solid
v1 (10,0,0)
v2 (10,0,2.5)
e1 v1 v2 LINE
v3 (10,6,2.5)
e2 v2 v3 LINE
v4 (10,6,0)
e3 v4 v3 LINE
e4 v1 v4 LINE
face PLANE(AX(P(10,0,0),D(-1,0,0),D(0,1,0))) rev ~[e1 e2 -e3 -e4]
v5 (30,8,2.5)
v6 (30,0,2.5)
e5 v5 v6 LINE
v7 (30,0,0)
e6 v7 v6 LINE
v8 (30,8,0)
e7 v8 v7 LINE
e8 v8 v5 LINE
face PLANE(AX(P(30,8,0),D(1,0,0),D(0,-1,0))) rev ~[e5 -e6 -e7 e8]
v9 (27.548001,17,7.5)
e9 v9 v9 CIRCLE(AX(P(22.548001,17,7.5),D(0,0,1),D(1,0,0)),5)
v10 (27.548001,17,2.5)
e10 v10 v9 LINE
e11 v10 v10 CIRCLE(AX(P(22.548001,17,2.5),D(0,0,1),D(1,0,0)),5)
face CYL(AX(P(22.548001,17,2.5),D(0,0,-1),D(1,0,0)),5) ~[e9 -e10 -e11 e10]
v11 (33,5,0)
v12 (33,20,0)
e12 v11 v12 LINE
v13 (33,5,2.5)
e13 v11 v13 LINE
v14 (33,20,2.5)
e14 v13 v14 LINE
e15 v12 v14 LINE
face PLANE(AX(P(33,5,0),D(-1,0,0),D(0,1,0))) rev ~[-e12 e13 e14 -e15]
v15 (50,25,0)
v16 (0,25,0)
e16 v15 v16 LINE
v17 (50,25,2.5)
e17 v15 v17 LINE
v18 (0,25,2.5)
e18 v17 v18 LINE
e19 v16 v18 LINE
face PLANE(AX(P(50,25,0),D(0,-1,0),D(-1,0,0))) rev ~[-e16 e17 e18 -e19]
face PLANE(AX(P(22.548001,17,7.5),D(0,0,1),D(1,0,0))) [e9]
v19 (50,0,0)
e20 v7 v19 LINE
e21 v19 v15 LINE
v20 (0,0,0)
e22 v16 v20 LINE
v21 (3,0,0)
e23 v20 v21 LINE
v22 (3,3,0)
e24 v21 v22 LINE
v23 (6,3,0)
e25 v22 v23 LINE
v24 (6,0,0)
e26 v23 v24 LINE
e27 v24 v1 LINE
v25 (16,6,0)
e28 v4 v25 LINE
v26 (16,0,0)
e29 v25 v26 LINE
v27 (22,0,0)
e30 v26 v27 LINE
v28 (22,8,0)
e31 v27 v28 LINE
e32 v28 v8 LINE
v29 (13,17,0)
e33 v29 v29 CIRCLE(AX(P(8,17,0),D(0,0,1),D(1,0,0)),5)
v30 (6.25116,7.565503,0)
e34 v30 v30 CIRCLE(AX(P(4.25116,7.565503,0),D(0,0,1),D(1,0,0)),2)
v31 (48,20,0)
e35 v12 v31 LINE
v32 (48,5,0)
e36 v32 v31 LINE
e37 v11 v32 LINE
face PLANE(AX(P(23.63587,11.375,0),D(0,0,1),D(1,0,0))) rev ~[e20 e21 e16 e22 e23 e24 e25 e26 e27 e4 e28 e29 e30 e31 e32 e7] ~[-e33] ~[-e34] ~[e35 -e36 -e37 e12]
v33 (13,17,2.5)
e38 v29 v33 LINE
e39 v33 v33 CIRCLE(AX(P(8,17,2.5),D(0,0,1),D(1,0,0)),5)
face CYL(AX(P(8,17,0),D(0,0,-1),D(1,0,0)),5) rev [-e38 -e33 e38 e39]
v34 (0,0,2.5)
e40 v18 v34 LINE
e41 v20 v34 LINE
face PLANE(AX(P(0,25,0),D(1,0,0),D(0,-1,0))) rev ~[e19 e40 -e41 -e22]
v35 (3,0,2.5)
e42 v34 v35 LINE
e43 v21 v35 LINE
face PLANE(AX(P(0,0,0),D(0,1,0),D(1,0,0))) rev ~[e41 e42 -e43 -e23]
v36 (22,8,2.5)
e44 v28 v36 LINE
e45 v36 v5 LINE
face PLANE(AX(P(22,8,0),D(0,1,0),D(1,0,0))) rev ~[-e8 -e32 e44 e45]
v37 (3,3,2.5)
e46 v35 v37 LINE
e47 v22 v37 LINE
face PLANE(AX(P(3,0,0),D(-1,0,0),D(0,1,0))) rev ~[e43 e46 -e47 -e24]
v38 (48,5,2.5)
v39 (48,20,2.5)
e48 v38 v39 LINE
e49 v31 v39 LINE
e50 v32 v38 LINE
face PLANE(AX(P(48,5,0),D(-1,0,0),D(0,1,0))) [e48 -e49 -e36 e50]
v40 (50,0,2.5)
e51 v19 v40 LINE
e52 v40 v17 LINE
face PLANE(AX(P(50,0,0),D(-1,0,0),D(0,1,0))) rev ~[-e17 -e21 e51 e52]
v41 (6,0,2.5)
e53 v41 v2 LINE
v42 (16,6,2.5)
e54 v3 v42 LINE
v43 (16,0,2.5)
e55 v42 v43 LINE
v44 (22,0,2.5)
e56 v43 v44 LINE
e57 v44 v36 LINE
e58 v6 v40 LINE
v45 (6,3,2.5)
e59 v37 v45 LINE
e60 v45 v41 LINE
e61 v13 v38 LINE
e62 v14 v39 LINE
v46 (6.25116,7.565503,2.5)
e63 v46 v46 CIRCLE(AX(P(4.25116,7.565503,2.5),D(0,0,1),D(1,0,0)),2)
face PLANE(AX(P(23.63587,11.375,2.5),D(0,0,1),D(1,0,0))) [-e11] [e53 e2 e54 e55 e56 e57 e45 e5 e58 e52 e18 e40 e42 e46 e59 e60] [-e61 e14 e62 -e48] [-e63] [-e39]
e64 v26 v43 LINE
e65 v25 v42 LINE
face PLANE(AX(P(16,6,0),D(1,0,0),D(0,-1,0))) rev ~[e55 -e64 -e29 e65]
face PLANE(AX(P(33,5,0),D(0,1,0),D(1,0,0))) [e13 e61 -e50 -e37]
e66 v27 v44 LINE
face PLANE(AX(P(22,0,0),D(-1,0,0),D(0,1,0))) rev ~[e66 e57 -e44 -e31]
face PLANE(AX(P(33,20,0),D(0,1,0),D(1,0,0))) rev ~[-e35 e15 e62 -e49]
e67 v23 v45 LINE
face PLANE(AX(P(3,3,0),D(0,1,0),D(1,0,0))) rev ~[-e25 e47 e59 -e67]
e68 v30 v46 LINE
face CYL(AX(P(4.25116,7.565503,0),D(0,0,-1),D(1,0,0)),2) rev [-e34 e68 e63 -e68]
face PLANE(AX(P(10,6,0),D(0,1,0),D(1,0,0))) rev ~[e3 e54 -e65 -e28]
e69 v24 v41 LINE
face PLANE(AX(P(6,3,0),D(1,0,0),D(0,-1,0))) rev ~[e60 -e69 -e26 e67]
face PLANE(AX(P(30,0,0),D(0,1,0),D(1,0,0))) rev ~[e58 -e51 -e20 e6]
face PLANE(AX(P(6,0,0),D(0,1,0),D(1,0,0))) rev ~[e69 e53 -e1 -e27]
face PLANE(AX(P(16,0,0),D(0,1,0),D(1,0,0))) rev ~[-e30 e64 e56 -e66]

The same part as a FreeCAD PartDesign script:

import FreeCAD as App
import Part
import Sketcher
from FreeCAD import Vector

doc = App.newDocument("Part")
params = doc.addObject("Spreadsheet::Sheet", "Params")
for row, (alias, value) in enumerate([
    ("sketch1_diameter", "4 mm"),
    ("sketch1_diameter2", "10 mm"),
    ("sketch1_width", "3 mm"),
    ("sketch1_width2", "4 mm"),
    ("sketch1_width3", "6 mm"),
    ("pad1_length", "2.5 mm"),
    ("sketch2_diameter", "10 mm"),
    ("pad2_length", "5 mm"),
], start=1):
    params.set(f"A{row}", alias)
    params.set(f"B{row}", "=" + value)
    params.setAlias(f"B{row}", alias)

body = doc.addObject("PartDesign::Body", "Body")

sketch1 = body.newObject("Sketcher::SketchObject", "Sketch")
sketch1.AttachmentSupport = (doc.getObject("XY_Plane"), [""])
sketch1.MapMode = "FlatFace"
sketch1.addGeometry([
    Part.LineSegment(Vector(0, 25, 0), Vector(0, 0, 0)),
    Part.LineSegment(Vector(0, 0, 0), Vector(3, 0, 0)),
    Part.LineSegment(Vector(3, 0, 0), Vector(3, 3, 0)),
    Part.LineSegment(Vector(3, 3, 0), Vector(6, 3, 0)),
    Part.LineSegment(Vector(6, 3, 0), Vector(6, 0, 0)),
    Part.LineSegment(Vector(6, 0, 0), Vector(10, 0, 0)),
    Part.LineSegment(Vector(10, 0, 0), Vector(10, 6, 0)),
    Part.LineSegment(Vector(10, 6, 0), Vector(16, 6, 0)),
    Part.LineSegment(Vector(16, 6, 0), Vector(16, 0, 0)),
    Part.LineSegment(Vector(16, 0, 0), Vector(22, 0, 0)),
    Part.LineSegment(Vector(22, 0, 0), Vector(22, 8, 0)),
    Part.LineSegment(Vector(22, 8, 0), Vector(30, 8, 0)),
    Part.LineSegment(Vector(30, 8, 0), Vector(30, 0, 0)),
    Part.LineSegment(Vector(30, 0, 0), Vector(50, 0, 0)),
    Part.LineSegment(Vector(50, 0, 0), Vector(50, 25, 0)),
    Part.LineSegment(Vector(50, 25, 0), Vector(0, 25, 0)),
    Part.Circle(Vector(4.3, 7.6, 0), Vector(0, 0, 1), 2),
    Part.LineSegment(Vector(48, 5, 0), Vector(33, 5, 0)),
    Part.LineSegment(Vector(33, 5, 0), Vector(33, 20, 0)),
    Part.LineSegment(Vector(33, 20, 0), Vector(48, 20, 0)),
    Part.LineSegment(Vector(48, 20, 0), Vector(48, 5, 0)),
    Part.Circle(Vector(8, 17, 0), Vector(0, 0, 1), 5),
], False)
sketch1.addConstraint([
    Sketcher.Constraint("Coincident", 0, 2, 1, 1),
    Sketcher.Constraint("Coincident", 1, 2, 2, 1),
    Sketcher.Constraint("Coincident", 2, 2, 3, 1),
    Sketcher.Constraint("Coincident", 3, 2, 4, 1),
    Sketcher.Constraint("Coincident", 4, 2, 5, 1),
    Sketcher.Constraint("Coincident", 5, 2, 6, 1),
    Sketcher.Constraint("Coincident", 6, 2, 7, 1),
    Sketcher.Constraint("Coincident", 7, 2, 8, 1),
    Sketcher.Constraint("Coincident", 8, 2, 9, 1),
    Sketcher.Constraint("Coincident", 9, 2, 10, 1),
    Sketcher.Constraint("Coincident", 10, 2, 11, 1),
    Sketcher.Constraint("Coincident", 11, 2, 12, 1),
    Sketcher.Constraint("Coincident", 12, 2, 13, 1),
    Sketcher.Constraint("Coincident", 13, 2, 14, 1),
    Sketcher.Constraint("Coincident", 14, 2, 15, 1),
    Sketcher.Constraint("Coincident", 15, 2, 0, 1),
    Sketcher.Constraint("Coincident", 17, 2, 18, 1),
    Sketcher.Constraint("Coincident", 18, 2, 19, 1),
    Sketcher.Constraint("Coincident", 19, 2, 20, 1),
    Sketcher.Constraint("Coincident", 20, 2, 17, 1),
    Sketcher.Constraint("Vertical", 0),
    Sketcher.Constraint("Horizontal", 1),
    Sketcher.Constraint("Vertical", 2),
    Sketcher.Constraint("Horizontal", 3),
    Sketcher.Constraint("Vertical", 4),
    Sketcher.Constraint("Horizontal", 5),
    Sketcher.Constraint("Vertical", 6),
    Sketcher.Constraint("Horizontal", 7),
    Sketcher.Constraint("Vertical", 8),
    Sketcher.Constraint("Horizontal", 9),
    Sketcher.Constraint("Vertical", 10),
    Sketcher.Constraint("Horizontal", 11),
    Sketcher.Constraint("Vertical", 12),
    Sketcher.Constraint("Horizontal", 13),
    Sketcher.Constraint("Vertical", 14),
    Sketcher.Constraint("Horizontal", 15),
    Sketcher.Constraint("Horizontal", 17),
    Sketcher.Constraint("Vertical", 18),
    Sketcher.Constraint("Horizontal", 19),
    Sketcher.Constraint("Vertical", 20),
    Sketcher.Constraint("Coincident", 0, 2, -1, 1),
    Sketcher.Constraint("PointOnObject", 4, 2, -1),
    Sketcher.Constraint("PointOnObject", 8, 2, -1),
    Sketcher.Constraint("PointOnObject", 12, 2, -1),
    Sketcher.Constraint("Equal", 1, 3),
    Sketcher.Constraint("Equal", 7, 9),
    Sketcher.Constraint("Equal", 3, 2),
    Sketcher.Constraint("Equal", 9, 6),
    Sketcher.Constraint("Equal", 11, 10),
    Sketcher.Constraint("Equal", 19, 18),
    Sketcher.Constraint("Diameter", 16, 4.0),
    Sketcher.Constraint("Diameter", 21, 10.0),
    Sketcher.Constraint("DistanceX", 1, 1, 1, 2, 3.0),
    Sketcher.Constraint("DistanceX", 5, 1, 5, 2, 4.0),
    Sketcher.Constraint("DistanceX", 7, 1, 7, 2, 6.0),
    Sketcher.Constraint("DistanceX", 11, 1, 11, 2, 8.0),
    Sketcher.Constraint("DistanceX", 13, 1, 13, 2, 20.0),
    Sketcher.Constraint("DistanceX", 17, 2, 17, 1, 15.0),
    Sketcher.Constraint("DistanceY", 0, 2, 0, 1, 25.0),
    Sketcher.Constraint("DistanceX", -1, 1, 21, 3, 8.0),
    Sketcher.Constraint("DistanceY", -1, 1, 21, 3, 17.0),
    Sketcher.Constraint("DistanceX", -1, 1, 17, 2, 33.0),
    Sketcher.Constraint("DistanceY", -1, 1, 17, 2, 5.0),
    Sketcher.Constraint("DistanceX", -1, 1, 16, 3, 4.25116),
    Sketcher.Constraint("DistanceY", -1, 1, 16, 3, 7.565503),
])
sketch1.setExpression("Constraints[50]", "Params.sketch1_diameter")
sketch1.setExpression("Constraints[51]", "Params.sketch1_diameter2")
sketch1.setExpression("Constraints[52]", "Params.sketch1_width")
sketch1.setExpression("Constraints[53]", "Params.sketch1_width2")
sketch1.setExpression("Constraints[54]", "Params.sketch1_width3")
pad1 = body.newObject("PartDesign::Pad", "Pad")
pad1.Profile = sketch1
pad1.setExpression("Length", "Params.pad1_length")

sketch2 = body.newObject("Sketcher::SketchObject", "Sketch001")
sketch2.AttachmentSupport = (doc.getObject("XY_Plane"), [""])
sketch2.MapMode = "FlatFace"
sketch2.AttachmentOffset = App.Placement(Vector(0, 0, 2.5), App.Rotation())
sketch2.addGeometry(Part.Circle(Vector(23, 17, 0), Vector(0, 0, 1), 5), False)
sketch2.addConstraint([
    Sketcher.Constraint("Diameter", 0, 10.0),
    Sketcher.Constraint("DistanceY", -1, 1, 0, 3, 17.0),
    Sketcher.Constraint("DistanceX", -1, 1, 0, 3, 22.548001),
])
sketch2.setExpression("Constraints[0]", "Params.sketch2_diameter")
pad2 = body.newObject("PartDesign::Pad", "Pad001")
pad2.Profile = sketch2
pad2.setExpression("Length", "Params.pad2_length")

doc.recompute()
